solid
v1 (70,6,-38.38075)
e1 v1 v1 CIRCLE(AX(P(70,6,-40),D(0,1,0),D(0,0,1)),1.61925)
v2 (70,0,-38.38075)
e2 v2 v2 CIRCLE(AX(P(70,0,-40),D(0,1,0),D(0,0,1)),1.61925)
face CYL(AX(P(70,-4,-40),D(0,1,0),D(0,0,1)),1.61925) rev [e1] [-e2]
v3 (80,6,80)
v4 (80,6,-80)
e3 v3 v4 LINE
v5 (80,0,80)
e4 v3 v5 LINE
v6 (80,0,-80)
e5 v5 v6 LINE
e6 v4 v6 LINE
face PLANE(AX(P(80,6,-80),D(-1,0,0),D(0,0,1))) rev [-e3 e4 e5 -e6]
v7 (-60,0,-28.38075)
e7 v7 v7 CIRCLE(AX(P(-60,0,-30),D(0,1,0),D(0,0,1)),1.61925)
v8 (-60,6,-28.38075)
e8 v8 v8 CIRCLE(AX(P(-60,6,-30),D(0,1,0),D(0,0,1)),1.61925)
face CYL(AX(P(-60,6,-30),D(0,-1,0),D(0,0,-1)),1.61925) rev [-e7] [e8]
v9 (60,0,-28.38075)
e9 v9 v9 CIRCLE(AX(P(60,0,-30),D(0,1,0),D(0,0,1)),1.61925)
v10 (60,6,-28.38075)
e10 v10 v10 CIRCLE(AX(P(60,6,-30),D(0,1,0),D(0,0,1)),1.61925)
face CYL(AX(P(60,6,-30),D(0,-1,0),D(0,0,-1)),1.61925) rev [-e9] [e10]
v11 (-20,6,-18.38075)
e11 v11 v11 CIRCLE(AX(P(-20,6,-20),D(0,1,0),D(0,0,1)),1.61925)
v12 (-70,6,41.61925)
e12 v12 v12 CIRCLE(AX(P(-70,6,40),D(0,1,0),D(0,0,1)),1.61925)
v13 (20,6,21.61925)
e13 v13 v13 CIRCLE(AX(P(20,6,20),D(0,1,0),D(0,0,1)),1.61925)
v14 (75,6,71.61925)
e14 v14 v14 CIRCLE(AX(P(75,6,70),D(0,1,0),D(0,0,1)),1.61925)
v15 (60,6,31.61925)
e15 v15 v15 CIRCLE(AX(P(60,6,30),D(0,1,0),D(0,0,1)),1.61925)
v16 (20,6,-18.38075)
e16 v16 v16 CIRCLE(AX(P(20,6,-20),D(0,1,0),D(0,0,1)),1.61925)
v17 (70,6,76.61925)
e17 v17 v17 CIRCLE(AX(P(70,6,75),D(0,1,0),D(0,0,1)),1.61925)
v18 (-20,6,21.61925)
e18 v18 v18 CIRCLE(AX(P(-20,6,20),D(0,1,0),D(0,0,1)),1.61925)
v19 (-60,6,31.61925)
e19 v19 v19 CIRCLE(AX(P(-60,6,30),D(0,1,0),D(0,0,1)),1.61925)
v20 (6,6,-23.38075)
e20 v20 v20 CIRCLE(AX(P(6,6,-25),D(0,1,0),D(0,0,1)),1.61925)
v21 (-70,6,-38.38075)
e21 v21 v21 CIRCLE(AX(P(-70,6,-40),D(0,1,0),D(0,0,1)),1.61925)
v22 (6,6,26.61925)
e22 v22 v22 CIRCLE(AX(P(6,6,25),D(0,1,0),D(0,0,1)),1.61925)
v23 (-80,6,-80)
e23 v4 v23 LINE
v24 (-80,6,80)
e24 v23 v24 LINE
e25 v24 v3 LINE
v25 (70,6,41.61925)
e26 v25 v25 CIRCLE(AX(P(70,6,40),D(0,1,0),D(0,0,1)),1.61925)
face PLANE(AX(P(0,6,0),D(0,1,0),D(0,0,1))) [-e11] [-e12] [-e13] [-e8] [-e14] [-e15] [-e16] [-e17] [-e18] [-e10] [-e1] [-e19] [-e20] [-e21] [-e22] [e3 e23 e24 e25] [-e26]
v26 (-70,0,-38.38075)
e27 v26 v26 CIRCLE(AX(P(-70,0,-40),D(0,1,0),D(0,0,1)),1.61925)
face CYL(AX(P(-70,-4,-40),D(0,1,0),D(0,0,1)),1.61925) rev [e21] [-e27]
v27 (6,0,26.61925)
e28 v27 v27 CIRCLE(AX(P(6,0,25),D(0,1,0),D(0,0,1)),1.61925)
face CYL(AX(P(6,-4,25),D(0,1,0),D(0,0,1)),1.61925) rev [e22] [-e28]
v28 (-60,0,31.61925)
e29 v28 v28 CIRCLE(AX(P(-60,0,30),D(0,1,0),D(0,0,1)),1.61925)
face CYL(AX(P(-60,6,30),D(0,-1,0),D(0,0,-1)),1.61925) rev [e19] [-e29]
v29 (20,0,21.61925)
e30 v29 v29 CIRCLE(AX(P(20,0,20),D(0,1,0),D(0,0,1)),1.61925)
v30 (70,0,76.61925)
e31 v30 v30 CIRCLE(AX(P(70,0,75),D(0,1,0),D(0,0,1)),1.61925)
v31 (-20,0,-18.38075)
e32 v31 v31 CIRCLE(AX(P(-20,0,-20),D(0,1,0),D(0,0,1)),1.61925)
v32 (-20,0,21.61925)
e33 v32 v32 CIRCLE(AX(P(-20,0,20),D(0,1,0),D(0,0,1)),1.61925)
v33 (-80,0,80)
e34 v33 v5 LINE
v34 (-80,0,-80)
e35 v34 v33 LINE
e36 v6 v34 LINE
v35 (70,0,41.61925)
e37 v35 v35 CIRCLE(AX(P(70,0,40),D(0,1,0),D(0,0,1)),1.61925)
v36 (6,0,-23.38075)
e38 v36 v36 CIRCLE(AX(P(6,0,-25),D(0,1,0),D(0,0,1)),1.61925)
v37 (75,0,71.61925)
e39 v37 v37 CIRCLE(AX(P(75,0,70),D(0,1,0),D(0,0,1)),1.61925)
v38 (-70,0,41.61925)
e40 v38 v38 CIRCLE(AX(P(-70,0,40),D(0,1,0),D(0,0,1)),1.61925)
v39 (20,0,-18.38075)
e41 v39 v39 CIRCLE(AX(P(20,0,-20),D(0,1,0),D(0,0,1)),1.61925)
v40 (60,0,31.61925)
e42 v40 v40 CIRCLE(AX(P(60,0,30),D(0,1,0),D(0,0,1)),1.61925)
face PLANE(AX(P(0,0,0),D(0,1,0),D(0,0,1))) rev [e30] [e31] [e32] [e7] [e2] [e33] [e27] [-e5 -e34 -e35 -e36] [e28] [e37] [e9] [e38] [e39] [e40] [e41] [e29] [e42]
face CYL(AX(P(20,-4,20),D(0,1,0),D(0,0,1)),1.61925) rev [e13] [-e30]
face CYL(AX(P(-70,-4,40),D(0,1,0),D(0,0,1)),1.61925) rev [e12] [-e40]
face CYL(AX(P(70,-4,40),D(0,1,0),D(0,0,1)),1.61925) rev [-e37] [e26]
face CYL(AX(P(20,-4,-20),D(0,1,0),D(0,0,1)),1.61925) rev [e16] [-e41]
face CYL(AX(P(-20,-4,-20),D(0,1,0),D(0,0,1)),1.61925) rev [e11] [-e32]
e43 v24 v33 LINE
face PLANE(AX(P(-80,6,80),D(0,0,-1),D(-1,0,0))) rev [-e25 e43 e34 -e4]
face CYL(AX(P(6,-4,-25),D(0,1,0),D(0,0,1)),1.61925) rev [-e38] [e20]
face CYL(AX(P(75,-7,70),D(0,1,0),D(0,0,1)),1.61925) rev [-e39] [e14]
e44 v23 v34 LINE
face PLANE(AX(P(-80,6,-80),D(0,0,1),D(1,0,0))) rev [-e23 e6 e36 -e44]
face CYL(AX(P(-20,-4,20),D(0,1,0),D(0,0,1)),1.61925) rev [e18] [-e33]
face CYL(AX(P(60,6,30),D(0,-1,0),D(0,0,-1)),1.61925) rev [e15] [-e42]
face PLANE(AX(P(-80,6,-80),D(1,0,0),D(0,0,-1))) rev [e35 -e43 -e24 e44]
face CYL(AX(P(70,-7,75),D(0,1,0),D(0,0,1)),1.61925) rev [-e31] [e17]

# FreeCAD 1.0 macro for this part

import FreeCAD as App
import Part
import Sketcher
Q = App.Units.Quantity


def add_polygon(sketch, points):
    """Adds a closed chain of lines whose ends are joined by coincident constraints."""
    first, n = sketch.GeometryCount, len(points)
    for a, b in zip(points, points[1:] + points[:1]):
        sketch.addGeometry(Part.LineSegment(App.Vector(*a, 0), App.Vector(*b, 0)), False)
    for i in range(n):
        sketch.addConstraint(Sketcher.Constraint("Coincident", first + i, 2, first + (i + 1) % n, 1))

doc = App.newDocument("Part")
body = doc.addObject("PartDesign::Body", "Body")

# Sketch on XZ plane
sketch1 = body.newObject("Sketcher::SketchObject", "Sketch")
sketch1.AttachmentSupport = (doc.getObject("XZ_Plane"), [""])
sketch1.MapMode = "FlatFace"
add_polygon(sketch1, [(-80, -80), (-80, 80), (80, 80), (80, -80)])  # lines 0-3
sketch1.addGeometry(Part.Circle(App.Vector(-60, 30, 0), App.Vector(0, 0, 1), 1.6), False)  # 4
sketch1.addGeometry(Part.Circle(App.Vector(60, 30, 0), App.Vector(0, 0, 1), 1.6), False)  # 5
sketch1.addGeometry(Part.Circle(App.Vector(-60, -30, 0), App.Vector(0, 0, 1), 1.6), False)  # 6
sketch1.addGeometry(Part.Circle(App.Vector(60, -30, 0), App.Vector(0, 0, 1), 1.6), False)  # 7
sketch1.addConstraint(Sketcher.Constraint("Vertical", 0))
sketch1.addConstraint(Sketcher.Constraint("Horizontal", 1))
sketch1.addConstraint(Sketcher.Constraint("Vertical", 2))
sketch1.addConstraint(Sketcher.Constraint("Horizontal", 3))
sketch1.addConstraint(Sketcher.Constraint("Equal", 4, 5))
sketch1.addConstraint(Sketcher.Constraint("Equal", 5, 6))
sketch1.addConstraint(Sketcher.Constraint("Equal", 6, 7))
sketch1.addConstraint(Sketcher.Constraint("Symmetric", 5, 3, 6, 3, -1, 1))
sketch1.addConstraint(Sketcher.Constraint("Symmetric", 4, 3, 7, 3, -1, 1))
sketch1.addConstraint(Sketcher.Constraint("Symmetric", 0, 2, 2, 2, -1, 1))
sketch1.addConstraint(Sketcher.Constraint("Symmetric", 4, 3, 5, 3, -2))
sketch1.addConstraint(Sketcher.Constraint("Equal", 3, 0))
sketch1.addConstraint(Sketcher.Constraint("DistanceX", 1, 1, 1, 2, Q("160 mm")))
sketch1.addConstraint(Sketcher.Constraint("DistanceX", 4, 3, -1, 1, Q("60 mm")))
sketch1.addConstraint(Sketcher.Constraint("DistanceY", -1, 1, 4, 3, Q("30 mm")))
sketch1.addConstraint(Sketcher.Constraint("Diameter", 4, Q("3.2385 mm")))
pad1 = body.newObject("PartDesign::Pad", "Pad")
pad1.Profile = sketch1
pad1.Length = 6
pad1.Reversed = True

# Sketch on XZ plane
sketch2 = body.newObject("Sketcher::SketchObject", "Sketch001")
sketch2.AttachmentSupport = (doc.getObject("XZ_Plane"), [""])
sketch2.MapMode = "FlatFace"
sketch2.AttachmentOffset = App.Placement(App.Vector(0, 0, -6), App.Rotation())
sketch2.addGeometry(Part.Circle(App.Vector(-70, -40, 0), App.Vector(0, 0, 1), 1.6), False)
sketch2.addGeometry(Part.Circle(App.Vector(70, -40, 0), App.Vector(0, 0, 1), 1.6), False)
sketch2.addGeometry(Part.Circle(App.Vector(70, 40, 0), App.Vector(0, 0, 1), 1.6), False)
sketch2.addGeometry(Part.Circle(App.Vector(-70, 40, 0), App.Vector(0, 0, 1), 1.6), False)
sketch2.addConstraint(Sketcher.Constraint("Equal", 0, 1))
sketch2.addConstraint(Sketcher.Constraint("Equal", 1, 2))
sketch2.addConstraint(Sketcher.Constraint("Equal", 2, 3))
sketch2.addConstraint(Sketcher.Constraint("Symmetric", 0, 3, 2, 3, -1, 1))
sketch2.addConstraint(Sketcher.Constraint("Symmetric", 1, 3, 3, 3, -1, 1))
sketch2.addConstraint(Sketcher.Constraint("Symmetric", 0, 3, 1, 3, -2))
sketch2.addConstraint(Sketcher.Constraint("DistanceX", 0, 3, -1, 1, Q("70 mm")))
sketch2.addConstraint(Sketcher.Constraint("DistanceY", 0, 3, -1, 1, Q("40 mm")))
sketch2.addConstraint(Sketcher.Constraint("Diameter", 0, Q("3.2385 mm")))
pocket1 = body.newObject("PartDesign::Pocket", "Pocket")
pocket1.Profile = sketch2
pocket1.Length = 10
pocket1.Reversed = True

# Sketch on XZ plane
sketch3 = body.newObject("Sketcher::SketchObject", "Sketch002")
sketch3.AttachmentSupport = (doc.getObject("XZ_Plane"), [""])
sketch3.MapMode = "FlatFace"
sketch3.AttachmentOffset = App.Placement(App.Vector(0, 0, -6), App.Rotation())
sketch3.addGeometry(Part.Circle(App.Vector(-20, -20, 0), App.Vector(0, 0, 1), 1.6), False)
sketch3.addGeometry(Part.Circle(App.Vector(20, -20, 0), App.Vector(0, 0, 1), 1.6), False)
sketch3.addGeometry(Part.Circle(App.Vector(20, 20, 0), App.Vector(0, 0, 1), 1.6), False)
sketch3.addGeometry(Part.Circle(App.Vector(-20, 20, 0), App.Vector(0, 0, 1), 1.6), False)
sketch3.addConstraint(Sketcher.Constraint("Equal", 0, 1))
sketch3.addConstraint(Sketcher.Constraint("Equal", 1, 2))
sketch3.addConstraint(Sketcher.Constraint("Equal", 2, 3))
sketch3.addConstraint(Sketcher.Constraint("Symmetric", 0, 3, 2, 3, -1, 1))
sketch3.addConstraint(Sketcher.Constraint("Symmetric", 1, 3, 3, 3, -1, 1))
sketch3.addConstraint(Sketcher.Constraint("Symmetric", 0, 3, 1, 3, -2))
sketch3.addConstraint(Sketcher.Constraint("DistanceX", 0, 3, -1, 1, Q("20 mm")))
sketch3.addConstraint(Sketcher.Constraint("DistanceY", 0, 3, -1, 1, Q("20 mm")))
sketch3.addConstraint(Sketcher.Constraint("Diameter", 0, Q("3.2385 mm")))
pocket2 = body.newObject("PartDesign::Pocket", "Pocket001")
pocket2.Profile = sketch3
pocket2.Length = 10
pocket2.Reversed = True

# Sketch on XZ plane
sketch4 = body.newObject("Sketcher::SketchObject", "Sketch003")
sketch4.AttachmentSupport = (doc.getObject("XZ_Plane"), [""])
sketch4.MapMode = "FlatFace"
sketch4.AttachmentOffset = App.Placement(App.Vector(0, 0, -6), App.Rotation())
sketch4.addGeometry(Part.Circle(App.Vector(6, -25, 0), App.Vector(0, 0, 1), 1.6), False)
sketch4.addGeometry(Part.Circle(App.Vector(6, 25, 0), App.Vector(0, 0, 1), 1.6), False)
sketch4.addConstraint(Sketcher.Constraint("Equal", 0, 1))
sketch4.addConstraint(Sketcher.Constraint("Symmetric", 0, 3, 1, 3, -1))
sketch4.addConstraint(Sketcher.Constraint("DistanceX", -1, 1, 0, 3, Q("6 mm")))
sketch4.addConstraint(Sketcher.Constraint("DistanceY", 0, 3, -1, 1, Q("25 mm")))
sketch4.addConstraint(Sketcher.Constraint("Diameter", 0, Q("3.2385 mm")))
pocket3 = body.newObject("PartDesign::Pocket", "Pocket002")
pocket3.Profile = sketch4
pocket3.Length = 10
pocket3.Reversed = True

# Sketch on XZ plane
sketch5 = body.newObject("Sketcher::SketchObject", "Sketch004")
sketch5.AttachmentSupport = (doc.getObject("XZ_Plane"), [""])
sketch5.MapMode = "FlatFace"
sketch5.AttachmentOffset = App.Placement(App.Vector(0, 0, -6), App.Rotation())
sketch5.addGeometry(Part.Circle(App.Vector(70, 75, 0), App.Vector(0, 0, 1), 1.6), False)
sketch5.addGeometry(Part.Circle(App.Vector(75, 70, 0), App.Vector(0, 0, 1), 1.6), False)
sketch5.addConstraint(Sketcher.Constraint("Equal", 0, 1))
sketch5.addConstraint(Sketcher.Constraint("DistanceX", -1, 1, 0, 3, Q("70 mm")))
sketch5.addConstraint(Sketcher.Constraint("DistanceY", -1, 1, 0, 3, Q("75 mm")))
sketch5.addConstraint(Sketcher.Constraint("DistanceX", -1, 1, 1, 3, Q("75 mm")))
sketch5.addConstraint(Sketcher.Constraint("DistanceY", -1, 1, 1, 3, Q("70 mm")))
sketch5.addConstraint(Sketcher.Constraint("Diameter", 0, Q("3.2385 mm")))
pocket4 = body.newObject("PartDesign::Pocket", "Pocket003")
pocket4.Profile = sketch5
pocket4.Length = 13
pocket4.Reversed = True

doc.recompute()
